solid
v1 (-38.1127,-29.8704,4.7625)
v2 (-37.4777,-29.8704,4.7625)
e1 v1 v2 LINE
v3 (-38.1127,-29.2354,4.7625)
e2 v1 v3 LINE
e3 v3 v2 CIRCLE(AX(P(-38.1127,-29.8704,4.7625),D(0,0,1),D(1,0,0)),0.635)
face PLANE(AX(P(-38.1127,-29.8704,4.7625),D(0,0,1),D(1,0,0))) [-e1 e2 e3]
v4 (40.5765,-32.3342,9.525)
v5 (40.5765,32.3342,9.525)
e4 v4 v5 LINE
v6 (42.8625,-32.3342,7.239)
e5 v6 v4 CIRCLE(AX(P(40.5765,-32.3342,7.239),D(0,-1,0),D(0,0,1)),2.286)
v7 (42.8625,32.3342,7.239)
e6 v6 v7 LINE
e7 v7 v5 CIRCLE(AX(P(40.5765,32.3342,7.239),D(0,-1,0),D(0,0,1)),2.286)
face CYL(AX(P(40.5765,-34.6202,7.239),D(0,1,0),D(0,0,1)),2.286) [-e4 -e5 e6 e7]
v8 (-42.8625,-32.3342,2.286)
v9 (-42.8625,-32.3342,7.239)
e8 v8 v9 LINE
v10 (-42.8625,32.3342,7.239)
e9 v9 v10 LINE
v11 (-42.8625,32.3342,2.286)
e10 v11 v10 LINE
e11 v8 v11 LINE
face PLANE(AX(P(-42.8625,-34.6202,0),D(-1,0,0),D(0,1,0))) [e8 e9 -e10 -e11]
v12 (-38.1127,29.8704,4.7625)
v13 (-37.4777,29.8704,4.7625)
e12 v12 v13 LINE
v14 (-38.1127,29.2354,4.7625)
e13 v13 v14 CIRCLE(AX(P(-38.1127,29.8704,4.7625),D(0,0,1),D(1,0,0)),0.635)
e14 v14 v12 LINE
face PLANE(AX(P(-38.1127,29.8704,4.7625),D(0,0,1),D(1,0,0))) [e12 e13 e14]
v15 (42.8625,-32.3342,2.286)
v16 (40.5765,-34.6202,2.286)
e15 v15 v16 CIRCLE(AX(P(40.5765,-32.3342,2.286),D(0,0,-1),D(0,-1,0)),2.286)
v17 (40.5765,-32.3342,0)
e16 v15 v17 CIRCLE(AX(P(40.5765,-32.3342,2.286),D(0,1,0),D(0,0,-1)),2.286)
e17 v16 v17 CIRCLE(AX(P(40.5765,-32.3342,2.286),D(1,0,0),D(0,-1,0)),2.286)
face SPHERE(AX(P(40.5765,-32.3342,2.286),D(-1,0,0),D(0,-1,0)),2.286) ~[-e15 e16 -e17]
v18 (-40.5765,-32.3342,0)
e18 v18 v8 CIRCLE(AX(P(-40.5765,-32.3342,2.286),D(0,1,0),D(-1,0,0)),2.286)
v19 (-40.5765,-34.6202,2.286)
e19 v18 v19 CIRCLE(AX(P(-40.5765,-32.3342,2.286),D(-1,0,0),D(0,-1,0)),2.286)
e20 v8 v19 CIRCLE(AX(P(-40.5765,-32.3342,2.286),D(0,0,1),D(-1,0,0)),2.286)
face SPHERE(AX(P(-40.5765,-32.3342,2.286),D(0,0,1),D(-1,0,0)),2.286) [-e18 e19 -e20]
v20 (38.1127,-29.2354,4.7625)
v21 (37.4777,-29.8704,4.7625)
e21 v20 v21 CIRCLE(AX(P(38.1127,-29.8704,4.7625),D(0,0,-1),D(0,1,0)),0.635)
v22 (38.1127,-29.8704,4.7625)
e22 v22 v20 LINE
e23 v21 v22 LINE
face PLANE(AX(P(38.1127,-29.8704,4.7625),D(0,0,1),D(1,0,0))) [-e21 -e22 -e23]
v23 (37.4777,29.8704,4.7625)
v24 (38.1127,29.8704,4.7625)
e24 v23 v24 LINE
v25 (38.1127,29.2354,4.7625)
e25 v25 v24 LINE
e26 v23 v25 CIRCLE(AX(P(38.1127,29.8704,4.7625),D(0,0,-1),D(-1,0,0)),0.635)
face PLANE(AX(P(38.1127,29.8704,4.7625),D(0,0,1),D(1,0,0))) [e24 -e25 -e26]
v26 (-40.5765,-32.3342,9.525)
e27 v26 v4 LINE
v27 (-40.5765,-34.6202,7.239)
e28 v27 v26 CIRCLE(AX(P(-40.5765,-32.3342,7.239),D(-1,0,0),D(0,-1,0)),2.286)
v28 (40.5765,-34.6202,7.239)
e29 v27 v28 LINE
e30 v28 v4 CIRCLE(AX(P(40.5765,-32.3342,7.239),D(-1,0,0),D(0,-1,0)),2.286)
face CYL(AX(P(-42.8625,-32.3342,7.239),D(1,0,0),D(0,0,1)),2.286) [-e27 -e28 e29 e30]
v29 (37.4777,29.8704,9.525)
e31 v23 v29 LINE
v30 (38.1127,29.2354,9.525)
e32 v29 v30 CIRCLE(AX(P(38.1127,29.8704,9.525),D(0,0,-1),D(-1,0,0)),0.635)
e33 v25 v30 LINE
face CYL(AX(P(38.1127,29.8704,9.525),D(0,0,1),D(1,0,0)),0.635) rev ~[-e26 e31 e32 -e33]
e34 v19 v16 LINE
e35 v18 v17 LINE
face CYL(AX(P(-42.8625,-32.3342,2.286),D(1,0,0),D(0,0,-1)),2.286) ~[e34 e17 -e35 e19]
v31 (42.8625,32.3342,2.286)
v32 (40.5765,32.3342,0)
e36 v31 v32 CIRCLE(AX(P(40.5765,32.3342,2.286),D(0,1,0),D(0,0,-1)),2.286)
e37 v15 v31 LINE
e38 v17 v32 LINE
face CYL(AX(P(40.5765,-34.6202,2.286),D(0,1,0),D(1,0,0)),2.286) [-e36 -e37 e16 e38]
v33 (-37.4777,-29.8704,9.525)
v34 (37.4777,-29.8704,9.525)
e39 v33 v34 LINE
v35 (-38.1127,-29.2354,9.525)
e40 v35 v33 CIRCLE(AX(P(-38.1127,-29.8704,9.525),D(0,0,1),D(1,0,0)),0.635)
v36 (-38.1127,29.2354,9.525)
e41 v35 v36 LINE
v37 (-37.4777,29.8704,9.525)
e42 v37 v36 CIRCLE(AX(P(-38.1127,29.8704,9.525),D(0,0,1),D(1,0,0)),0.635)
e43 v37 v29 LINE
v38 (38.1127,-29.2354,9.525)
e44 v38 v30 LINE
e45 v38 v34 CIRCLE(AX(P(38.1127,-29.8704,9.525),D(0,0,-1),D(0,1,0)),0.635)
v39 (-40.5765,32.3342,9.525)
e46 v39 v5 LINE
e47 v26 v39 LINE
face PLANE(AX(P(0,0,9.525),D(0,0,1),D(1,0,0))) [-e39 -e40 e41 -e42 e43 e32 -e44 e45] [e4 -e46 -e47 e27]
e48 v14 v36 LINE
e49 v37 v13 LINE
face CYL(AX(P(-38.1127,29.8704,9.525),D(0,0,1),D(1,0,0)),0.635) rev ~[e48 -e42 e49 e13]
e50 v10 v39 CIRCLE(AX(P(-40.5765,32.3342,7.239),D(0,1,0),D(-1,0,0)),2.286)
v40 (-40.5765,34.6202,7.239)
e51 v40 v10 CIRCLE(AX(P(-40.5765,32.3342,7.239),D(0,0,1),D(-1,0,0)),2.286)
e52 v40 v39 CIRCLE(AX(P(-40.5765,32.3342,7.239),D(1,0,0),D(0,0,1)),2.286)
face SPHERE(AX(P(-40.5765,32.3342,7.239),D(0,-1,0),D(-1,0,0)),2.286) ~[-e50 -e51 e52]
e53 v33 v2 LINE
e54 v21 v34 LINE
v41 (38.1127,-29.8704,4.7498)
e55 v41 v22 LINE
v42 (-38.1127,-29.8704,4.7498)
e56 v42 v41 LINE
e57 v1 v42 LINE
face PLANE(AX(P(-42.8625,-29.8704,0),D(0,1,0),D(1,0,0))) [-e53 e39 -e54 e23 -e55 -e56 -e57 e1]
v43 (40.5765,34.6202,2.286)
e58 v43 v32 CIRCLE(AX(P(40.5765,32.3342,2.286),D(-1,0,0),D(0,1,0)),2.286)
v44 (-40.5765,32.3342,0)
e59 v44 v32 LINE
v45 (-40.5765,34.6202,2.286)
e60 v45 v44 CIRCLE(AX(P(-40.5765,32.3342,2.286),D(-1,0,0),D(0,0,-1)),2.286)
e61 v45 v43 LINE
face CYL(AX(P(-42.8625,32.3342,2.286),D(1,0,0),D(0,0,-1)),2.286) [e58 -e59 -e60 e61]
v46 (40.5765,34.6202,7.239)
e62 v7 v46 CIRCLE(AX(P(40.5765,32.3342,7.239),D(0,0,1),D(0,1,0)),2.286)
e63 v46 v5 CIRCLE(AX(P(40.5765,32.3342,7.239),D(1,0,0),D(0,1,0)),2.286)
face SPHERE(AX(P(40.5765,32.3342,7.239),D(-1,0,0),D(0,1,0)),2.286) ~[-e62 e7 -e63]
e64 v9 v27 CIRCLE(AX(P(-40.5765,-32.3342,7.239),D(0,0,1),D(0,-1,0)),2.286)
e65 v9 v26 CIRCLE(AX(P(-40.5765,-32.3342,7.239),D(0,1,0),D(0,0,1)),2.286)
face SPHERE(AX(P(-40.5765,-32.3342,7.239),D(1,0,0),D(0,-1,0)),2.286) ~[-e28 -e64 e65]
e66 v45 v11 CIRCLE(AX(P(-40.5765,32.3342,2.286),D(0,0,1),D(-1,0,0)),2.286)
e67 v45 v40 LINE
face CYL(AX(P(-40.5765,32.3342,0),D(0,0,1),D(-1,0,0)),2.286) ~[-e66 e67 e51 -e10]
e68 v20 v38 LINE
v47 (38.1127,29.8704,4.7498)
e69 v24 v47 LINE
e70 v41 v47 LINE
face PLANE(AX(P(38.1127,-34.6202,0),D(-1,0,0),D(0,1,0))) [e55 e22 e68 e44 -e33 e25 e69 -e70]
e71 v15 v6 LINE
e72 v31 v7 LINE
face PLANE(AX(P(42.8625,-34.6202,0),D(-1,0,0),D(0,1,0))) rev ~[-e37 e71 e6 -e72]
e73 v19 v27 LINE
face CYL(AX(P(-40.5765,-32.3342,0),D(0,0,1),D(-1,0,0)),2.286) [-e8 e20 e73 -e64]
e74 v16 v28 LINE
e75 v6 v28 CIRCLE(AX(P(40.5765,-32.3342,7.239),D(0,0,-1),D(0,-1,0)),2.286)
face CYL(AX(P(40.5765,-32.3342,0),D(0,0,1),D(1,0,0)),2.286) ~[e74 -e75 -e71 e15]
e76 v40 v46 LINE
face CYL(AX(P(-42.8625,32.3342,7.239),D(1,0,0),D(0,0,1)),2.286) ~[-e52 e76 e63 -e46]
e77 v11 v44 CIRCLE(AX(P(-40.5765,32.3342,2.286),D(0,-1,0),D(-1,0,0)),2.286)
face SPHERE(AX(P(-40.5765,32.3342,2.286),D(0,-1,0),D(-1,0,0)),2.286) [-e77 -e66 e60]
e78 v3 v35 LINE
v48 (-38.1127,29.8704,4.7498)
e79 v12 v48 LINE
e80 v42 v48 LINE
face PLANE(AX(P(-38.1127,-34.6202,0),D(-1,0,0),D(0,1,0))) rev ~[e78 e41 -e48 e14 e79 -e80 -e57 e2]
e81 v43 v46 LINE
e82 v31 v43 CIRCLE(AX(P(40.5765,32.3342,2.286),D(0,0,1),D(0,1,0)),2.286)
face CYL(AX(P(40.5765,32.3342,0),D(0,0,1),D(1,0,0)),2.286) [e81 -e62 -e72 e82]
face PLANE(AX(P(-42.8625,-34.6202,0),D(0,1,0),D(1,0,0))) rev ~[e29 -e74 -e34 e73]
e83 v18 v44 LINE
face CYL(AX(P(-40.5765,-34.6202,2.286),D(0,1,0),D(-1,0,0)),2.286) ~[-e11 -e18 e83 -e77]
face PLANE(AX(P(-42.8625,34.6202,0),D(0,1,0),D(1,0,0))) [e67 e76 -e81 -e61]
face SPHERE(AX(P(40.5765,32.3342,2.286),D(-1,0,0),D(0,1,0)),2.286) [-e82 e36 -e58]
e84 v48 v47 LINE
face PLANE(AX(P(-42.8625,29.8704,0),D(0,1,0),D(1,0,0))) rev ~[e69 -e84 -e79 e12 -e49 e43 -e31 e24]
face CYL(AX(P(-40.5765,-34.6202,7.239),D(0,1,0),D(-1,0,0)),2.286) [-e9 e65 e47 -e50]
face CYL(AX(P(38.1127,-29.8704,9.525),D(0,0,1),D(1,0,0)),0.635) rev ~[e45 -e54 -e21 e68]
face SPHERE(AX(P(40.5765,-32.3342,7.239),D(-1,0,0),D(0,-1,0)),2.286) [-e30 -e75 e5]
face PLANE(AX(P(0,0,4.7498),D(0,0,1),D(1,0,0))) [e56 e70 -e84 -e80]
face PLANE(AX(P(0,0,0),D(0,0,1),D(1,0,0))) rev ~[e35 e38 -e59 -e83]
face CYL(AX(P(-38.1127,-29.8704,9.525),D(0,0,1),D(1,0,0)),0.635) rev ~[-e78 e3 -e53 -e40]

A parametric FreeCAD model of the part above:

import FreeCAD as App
import Part
import Sketcher
Q = App.Units.Quantity


def edges_at(feature, points):
    """Names of the edges that pass closest to the given points."""
    edges = feature.Shape.Edges
    near = lambda p: min(range(len(edges)), key=lambda i: edges[i].distToShape(Part.Vertex(*p))[0])
    return sorted({f"Edge{near(p) + 1}" for p in points})


def faces_at(feature, points):
    """Names of the faces that lie closest to the given points."""
    faces = feature.Shape.Faces
    near = lambda p: min(range(len(faces)), key=lambda i: faces[i].distToShape(Part.Vertex(*p))[0])
    return sorted({f"Face{near(p) + 1}" for p in points})

doc = App.newDocument("Part")
body = doc.addObject("PartDesign::Body", "Body")

sketch1 = body.newObject("Sketcher::SketchObject", "Sketch")
sketch1.AttachmentSupport = (doc.getObject("XY_Plane"), [""])
sketch1.MapMode = "FlatFace"
sketch1.addGeometry([
    Part.LineSegment(App.Vector(-43, 35, 0), App.Vector(-43, -35, 0)),
    Part.LineSegment(App.Vector(-43, -35, 0), App.Vector(43, -35, 0)),
    Part.LineSegment(App.Vector(43, -35, 0), App.Vector(43, 35, 0)),
    Part.LineSegment(App.Vector(43, 35, 0), App.Vector(-43, 35, 0)),
], False)
sketch1.addConstraint([
    Sketcher.Constraint("Coincident", 0, 2, 1, 1),
    Sketcher.Constraint("Coincident", 1, 2, 2, 1),
    Sketcher.Constraint("Coincident", 2, 2, 3, 1),
    Sketcher.Constraint("Coincident", 3, 2, 0, 1),
    Sketcher.Constraint("Vertical", 0),
    Sketcher.Constraint("Horizontal", 1),
    Sketcher.Constraint("Vertical", 2),
    Sketcher.Constraint("Horizontal", 3),
    Sketcher.Constraint("Symmetric", 0, 2, 2, 2, -1, 1),
    Sketcher.Constraint("DistanceX", 1, 1, 1, 2, Q("3.375 in")),
    Sketcher.Constraint("DistanceY", 0, 2, 0, 1, Q("2.726 in")),
])
pad1 = body.newObject("PartDesign::Pad", "Pad")
pad1.Profile = sketch1
pad1.Length = Q("0.375 in")
doc.recompute()

thickness = body.newObject("PartDesign::Thickness", "Thickness")
thickness.Base = (pad1, faces_at(pad1, [(0, 0, 9.525)]))
thickness.Value = Q("0.187 in")
thickness.Reversed = True
thickness.Join = "Arc"

sketch2 = body.newObject("Sketcher::SketchObject", "Sketch001")
sketch2.AttachmentSupport = (doc.getObject("XY_Plane"), [""])
sketch2.MapMode = "FlatFace"
sketch2.AttachmentOffset = App.Placement(App.Vector(0, 0, 0.375 * 25.4), App.Rotation())
sketch2.addGeometry([
    Part.Circle(App.Vector(-38.1, 29.9, 0), App.Vector(0, 0, 1), 0.6),
    Part.Circle(App.Vector(38.1, 29.9, 0), App.Vector(0, 0, 1), 0.6),
    Part.Circle(App.Vector(38.1, -29.9, 0), App.Vector(0, 0, 1), 0.6),
    Part.Circle(App.Vector(-38.1, -29.9, 0), App.Vector(0, 0, 1), 0.6),
], False)
sketch2.addConstraint([
    Sketcher.Constraint("Equal", 0, 1),
    Sketcher.Constraint("Equal", 1, 2),
    Sketcher.Constraint("Equal", 2, 3),
    Sketcher.Constraint("Symmetric", 0, 3, 2, 3, -1, 1),
    Sketcher.Constraint("Symmetric", 1, 3, 3, 3, -1, 1),
    Sketcher.Constraint("Symmetric", 0, 3, 1, 3, -2),
    Sketcher.Constraint("Diameter", 0, Q("0.05 in")),
    Sketcher.Constraint("DistanceY", -1, 1, 0, 3, Q("1.176 in")),
    Sketcher.Constraint("DistanceX", 0, 3, 1, 3, Q("3.001 in")),
])
pocket1 = body.newObject("PartDesign::Pocket", "Pocket")
pocket1.Profile = sketch2
pocket1.Length = Q("0.1875 in")
doc.recompute()

fillet = body.newObject("PartDesign::Fillet", "Fillet")
fillet.Base = (pocket1, edges_at(pocket1, [
    (0, -34.62, 9.525),
    (-42.862, -34.62, 4.763),
    (-42.862, 0, 0),
    (-42.862, 0, 9.525),
    (0, -34.62, 0),
    (42.862, -34.62, 4.763),
    (-42.862, 34.62, 4.763),
    (0, 34.62, 9.525),
    (0, 34.62, 0),
    (42.862, 34.62, 4.763),
    (42.862, 0, 9.525),
    (42.862, 0, 0),
]))
fillet.Radius = Q("0.09 in")

doc.recompute()
